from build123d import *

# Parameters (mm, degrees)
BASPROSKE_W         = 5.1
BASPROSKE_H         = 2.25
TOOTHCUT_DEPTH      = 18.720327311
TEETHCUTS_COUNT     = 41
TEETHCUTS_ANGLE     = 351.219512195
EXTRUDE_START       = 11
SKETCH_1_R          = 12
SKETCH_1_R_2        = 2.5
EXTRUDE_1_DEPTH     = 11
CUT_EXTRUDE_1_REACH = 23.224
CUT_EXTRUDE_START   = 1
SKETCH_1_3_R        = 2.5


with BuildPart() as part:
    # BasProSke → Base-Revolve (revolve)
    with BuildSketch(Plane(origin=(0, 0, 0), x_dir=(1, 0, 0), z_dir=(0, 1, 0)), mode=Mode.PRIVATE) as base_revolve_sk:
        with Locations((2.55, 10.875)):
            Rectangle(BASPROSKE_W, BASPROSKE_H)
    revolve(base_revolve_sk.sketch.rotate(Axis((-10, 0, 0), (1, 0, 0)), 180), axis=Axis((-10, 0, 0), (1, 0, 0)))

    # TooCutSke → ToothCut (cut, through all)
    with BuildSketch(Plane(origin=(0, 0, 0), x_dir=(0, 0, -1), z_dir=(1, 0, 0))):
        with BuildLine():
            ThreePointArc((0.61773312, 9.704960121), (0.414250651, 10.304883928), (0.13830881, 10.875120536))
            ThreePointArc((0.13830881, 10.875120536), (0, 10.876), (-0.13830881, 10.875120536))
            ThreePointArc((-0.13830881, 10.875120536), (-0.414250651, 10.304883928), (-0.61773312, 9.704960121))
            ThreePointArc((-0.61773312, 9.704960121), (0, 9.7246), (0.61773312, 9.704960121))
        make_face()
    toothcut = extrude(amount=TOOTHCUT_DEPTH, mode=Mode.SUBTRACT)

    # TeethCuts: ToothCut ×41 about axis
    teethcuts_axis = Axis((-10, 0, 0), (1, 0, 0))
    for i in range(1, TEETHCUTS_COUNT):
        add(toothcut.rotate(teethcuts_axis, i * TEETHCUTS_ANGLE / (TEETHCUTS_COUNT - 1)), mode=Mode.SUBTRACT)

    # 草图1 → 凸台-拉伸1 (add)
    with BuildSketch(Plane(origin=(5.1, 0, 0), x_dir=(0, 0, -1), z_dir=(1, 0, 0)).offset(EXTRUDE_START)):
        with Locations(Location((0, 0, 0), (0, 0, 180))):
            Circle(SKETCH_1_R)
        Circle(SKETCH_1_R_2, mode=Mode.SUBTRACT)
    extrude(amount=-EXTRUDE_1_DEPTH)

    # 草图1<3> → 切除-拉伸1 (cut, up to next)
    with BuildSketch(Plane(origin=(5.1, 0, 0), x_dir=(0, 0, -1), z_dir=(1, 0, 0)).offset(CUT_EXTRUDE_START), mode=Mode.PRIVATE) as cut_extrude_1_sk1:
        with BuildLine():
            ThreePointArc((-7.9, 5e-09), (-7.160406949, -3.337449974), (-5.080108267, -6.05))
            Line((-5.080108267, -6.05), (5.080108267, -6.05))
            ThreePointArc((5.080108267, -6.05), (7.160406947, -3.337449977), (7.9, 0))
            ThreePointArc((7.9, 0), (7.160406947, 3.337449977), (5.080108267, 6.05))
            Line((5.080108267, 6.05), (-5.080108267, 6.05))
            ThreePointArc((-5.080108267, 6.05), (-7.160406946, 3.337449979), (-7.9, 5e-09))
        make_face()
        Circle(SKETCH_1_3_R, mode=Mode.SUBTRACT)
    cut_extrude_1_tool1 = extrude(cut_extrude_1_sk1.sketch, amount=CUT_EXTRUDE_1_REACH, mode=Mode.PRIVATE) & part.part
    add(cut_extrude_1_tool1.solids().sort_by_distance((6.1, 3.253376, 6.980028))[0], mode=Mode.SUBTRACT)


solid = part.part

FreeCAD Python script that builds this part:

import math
import FreeCAD as App
import Part
import Sketcher

V = App.Vector


def add_polygon(sketch, points):
    """Adds a closed chain of lines whose ends are joined by coincident constraints."""
    first, n = sketch.GeometryCount, len(points)
    for a, b in zip(points, points[1:] + points[:1]):
        sketch.addGeometry(Part.LineSegment(App.Vector(*a, 0), App.Vector(*b, 0)), False)
    for i in range(n):
        sketch.addConstraint(Sketcher.Constraint("Coincident", first + i, 2, first + (i + 1) % n, 1))

doc = App.newDocument("Part")
body = doc.addObject("PartDesign::Body", "Body")

# Sketch on XZ plane
sketch1 = body.newObject("Sketcher::SketchObject", "Sketch")
sketch1.AttachmentSupport = (doc.getObject("XZ_Plane"), [""])
sketch1.MapMode = "FlatFace"
add_polygon(sketch1, [(0, -12), (0, -9.8), (5.1, -9.8), (5.1, -12)])  # lines 0-3
sketch1.addConstraint([
    Sketcher.Constraint("Vertical", 0),
    Sketcher.Constraint("Horizontal", 1),
    Sketcher.Constraint("Vertical", 2),
    Sketcher.Constraint("Horizontal", 3),
    Sketcher.Constraint("PointOnObject", 0, 2, -2),
    Sketcher.Constraint("DistanceX", 1, 1, 1, 2, 5.1),
    Sketcher.Constraint("DistanceY", 2, 2, -1, 1, 12.0),
    Sketcher.Constraint("DistanceY", 0, 1, 0, 2, 2.25),
])
revolution = body.newObject("PartDesign::Revolution", "Revolution")
revolution.Profile = sketch1
revolution.ReferenceAxis = (sketch1, ["H_Axis"])
revolution.Angle = 360

# Sketch on YZ plane
sketch2 = body.newObject("Sketcher::SketchObject", "Sketch001")
sketch2.AttachmentSupport = (doc.getObject("YZ_Plane"), [""])
sketch2.MapMode = "FlatFace"
sketch2.addGeometry([
    Part.ArcOfCircle(Part.Circle(V(8.36, 4.33, 0), V(0, 0, 1), 5.12), math.radians(-74.81), math.radians(-60.63)),
    Part.ArcOfCircle(Part.Circle(V(0, 0, 0), V(0, 0, 1), 10.88), math.radians(-0.73), math.radians(0.73)),
    Part.ArcOfCircle(Part.Circle(V(8.36, -4.33, 0), V(0, 0, 1), 5.12), math.radians(60.63), math.radians(74.81)),
    Part.ArcOfCircle(Part.Circle(V(0, 0, 0), V(0, 0, 1), 9.72), math.radians(-3.64), math.radians(3.64)),
], False)
sketch2.addConstraint([
    Sketcher.Constraint("Coincident", 0, 2, 1, 1),
    Sketcher.Constraint("Coincident", 1, 2, 2, 1),
    Sketcher.Constraint("Coincident", 2, 2, 3, 2),
    Sketcher.Constraint("Coincident", 3, 1, 0, 1),
    Sketcher.Constraint("Coincident", 1, 3, -1, 1),
    Sketcher.Constraint("Coincident", 3, 3, -1, 1),
    Sketcher.Constraint("Equal", 0, 2),
    Sketcher.Constraint("Symmetric", 0, 3, 2, 3, -1),
    Sketcher.Constraint("Radius", 0, 5.125),
    Sketcher.Constraint("Radius", 1, 10.876),
    Sketcher.Constraint("Radius", 3, 9.7246),
    Sketcher.Constraint("DistanceY", 2, 3, 0, 3, 8.656302),
    Sketcher.Constraint("DistanceY", 0, 2, -1, 1, 0.138309),
])
pocket1 = body.newObject("PartDesign::Pocket", "Pocket")
pocket1.Profile = sketch2
pocket1.Type = "ThroughAll"
pocket1.Reversed = True
doc.recompute()

polarpattern = body.newObject("PartDesign::PolarPattern", "PolarPattern")
polarpattern.Originals = [pocket1]
polarpattern.Axis = (doc.getObject("X_Axis"), [""])
polarpattern.Angle = 360
polarpattern.Occurrences = 41
body.Tip = polarpattern

# Sketch on YZ plane
sketch3 = body.newObject("Sketcher::SketchObject", "Sketch002")
sketch3.AttachmentSupport = (doc.getObject("YZ_Plane"), [""])
sketch3.MapMode = "FlatFace"
sketch3.AttachmentOffset = App.Placement(V(0, 0, 16.1), App.Rotation())
sketch3.addGeometry([
    Part.Circle(V(0, 0, 0), V(0, 0, 1), 12),
    Part.Circle(V(0, 0, 0), V(0, 0, 1), 2.5),
], False)
sketch3.addConstraint([
    Sketcher.Constraint("Coincident", 0, 3, -1, 1),
    Sketcher.Constraint("Coincident", 1, 3, -1, 1),
    Sketcher.Constraint("Diameter", 0, 24.0),
    Sketcher.Constraint("Diameter", 1, 5.0),
])
pad1 = body.newObject("PartDesign::Pad", "Pad")
pad1.Profile = sketch3
pad1.Length = 11
pad1.Reversed = True

# Sketch on YZ plane
sketch4 = body.newObject("Sketcher::SketchObject", "Sketch003")
sketch4.AttachmentSupport = (doc.getObject("YZ_Plane"), [""])
sketch4.MapMode = "FlatFace"
sketch4.AttachmentOffset = App.Placement(V(0, 0, 6.1), App.Rotation())
sketch4.addGeometry([
    Part.ArcOfCircle(Part.Circle(V(0, 0, 0), V(0, 0, 1), 7.9), math.radians(90), math.radians(140)),  # 0
    Part.LineSegment(V(-6, 5.1, 0), V(-6, -5.1, 0)),  # 1
    Part.ArcOfCircle(Part.Circle(V(0, 0, 0), V(0, 0, 1), 7.9), math.radians(-140), math.radians(-90)),  # 2
    Part.ArcOfCircle(Part.Circle(V(0, 0, 0), V(0, 0, 1), 7.9), math.radians(-90), math.radians(-40)),  # 3
    Part.LineSegment(V(6, -5.1, 0), V(6, 5.1, 0)),  # 4
    Part.ArcOfCircle(Part.Circle(V(0, 0, 0), V(0, 0, 1), 7.9), math.radians(40), math.radians(90)),  # 5
    Part.Circle(V(0, 0, 0), V(0, 0, 1), 2.5),  # 6
], False)
sketch4.addConstraint([
    Sketcher.Constraint("Coincident", 0, 2, 1, 1),
    Sketcher.Constraint("Coincident", 1, 2, 2, 1),
    Sketcher.Constraint("Tangent", 2, 2, 3, 1),
    Sketcher.Constraint("Coincident", 3, 2, 4, 1),
    Sketcher.Constraint("Coincident", 4, 2, 5, 1),
    Sketcher.Constraint("Tangent", 5, 2, 0, 1),
    Sketcher.Constraint("Vertical", 1),
    Sketcher.Constraint("Vertical", 4),
    Sketcher.Constraint("Coincident", 0, 3, -1, 1),
    Sketcher.Constraint("Coincident", 2, 3, -1, 1),
    Sketcher.Constraint("Coincident", 6, 3, -1, 1),
    Sketcher.Constraint("Equal", 0, 2),
    Sketcher.Constraint("Equal", 2, 3),
    Sketcher.Constraint("Equal", 3, 5),
    Sketcher.Constraint("PointOnObject", 2, 2, -2),
    Sketcher.Constraint("PointOnObject", 5, 2, -2),
    Sketcher.Constraint("Horizontal", 1, 2, 3, 2),
    Sketcher.Constraint("Diameter", 6, 5.0),
    Sketcher.Constraint("Radius", 0, 7.9),
    Sketcher.Constraint("DistanceX", 0, 2, -1, 1, 6.05),
])
pocket2 = body.newObject("PartDesign::Pocket", "Pocket001")
pocket2.Profile = sketch4
pocket2.Length = 10
pocket2.Reversed = True

doc.recompute()
